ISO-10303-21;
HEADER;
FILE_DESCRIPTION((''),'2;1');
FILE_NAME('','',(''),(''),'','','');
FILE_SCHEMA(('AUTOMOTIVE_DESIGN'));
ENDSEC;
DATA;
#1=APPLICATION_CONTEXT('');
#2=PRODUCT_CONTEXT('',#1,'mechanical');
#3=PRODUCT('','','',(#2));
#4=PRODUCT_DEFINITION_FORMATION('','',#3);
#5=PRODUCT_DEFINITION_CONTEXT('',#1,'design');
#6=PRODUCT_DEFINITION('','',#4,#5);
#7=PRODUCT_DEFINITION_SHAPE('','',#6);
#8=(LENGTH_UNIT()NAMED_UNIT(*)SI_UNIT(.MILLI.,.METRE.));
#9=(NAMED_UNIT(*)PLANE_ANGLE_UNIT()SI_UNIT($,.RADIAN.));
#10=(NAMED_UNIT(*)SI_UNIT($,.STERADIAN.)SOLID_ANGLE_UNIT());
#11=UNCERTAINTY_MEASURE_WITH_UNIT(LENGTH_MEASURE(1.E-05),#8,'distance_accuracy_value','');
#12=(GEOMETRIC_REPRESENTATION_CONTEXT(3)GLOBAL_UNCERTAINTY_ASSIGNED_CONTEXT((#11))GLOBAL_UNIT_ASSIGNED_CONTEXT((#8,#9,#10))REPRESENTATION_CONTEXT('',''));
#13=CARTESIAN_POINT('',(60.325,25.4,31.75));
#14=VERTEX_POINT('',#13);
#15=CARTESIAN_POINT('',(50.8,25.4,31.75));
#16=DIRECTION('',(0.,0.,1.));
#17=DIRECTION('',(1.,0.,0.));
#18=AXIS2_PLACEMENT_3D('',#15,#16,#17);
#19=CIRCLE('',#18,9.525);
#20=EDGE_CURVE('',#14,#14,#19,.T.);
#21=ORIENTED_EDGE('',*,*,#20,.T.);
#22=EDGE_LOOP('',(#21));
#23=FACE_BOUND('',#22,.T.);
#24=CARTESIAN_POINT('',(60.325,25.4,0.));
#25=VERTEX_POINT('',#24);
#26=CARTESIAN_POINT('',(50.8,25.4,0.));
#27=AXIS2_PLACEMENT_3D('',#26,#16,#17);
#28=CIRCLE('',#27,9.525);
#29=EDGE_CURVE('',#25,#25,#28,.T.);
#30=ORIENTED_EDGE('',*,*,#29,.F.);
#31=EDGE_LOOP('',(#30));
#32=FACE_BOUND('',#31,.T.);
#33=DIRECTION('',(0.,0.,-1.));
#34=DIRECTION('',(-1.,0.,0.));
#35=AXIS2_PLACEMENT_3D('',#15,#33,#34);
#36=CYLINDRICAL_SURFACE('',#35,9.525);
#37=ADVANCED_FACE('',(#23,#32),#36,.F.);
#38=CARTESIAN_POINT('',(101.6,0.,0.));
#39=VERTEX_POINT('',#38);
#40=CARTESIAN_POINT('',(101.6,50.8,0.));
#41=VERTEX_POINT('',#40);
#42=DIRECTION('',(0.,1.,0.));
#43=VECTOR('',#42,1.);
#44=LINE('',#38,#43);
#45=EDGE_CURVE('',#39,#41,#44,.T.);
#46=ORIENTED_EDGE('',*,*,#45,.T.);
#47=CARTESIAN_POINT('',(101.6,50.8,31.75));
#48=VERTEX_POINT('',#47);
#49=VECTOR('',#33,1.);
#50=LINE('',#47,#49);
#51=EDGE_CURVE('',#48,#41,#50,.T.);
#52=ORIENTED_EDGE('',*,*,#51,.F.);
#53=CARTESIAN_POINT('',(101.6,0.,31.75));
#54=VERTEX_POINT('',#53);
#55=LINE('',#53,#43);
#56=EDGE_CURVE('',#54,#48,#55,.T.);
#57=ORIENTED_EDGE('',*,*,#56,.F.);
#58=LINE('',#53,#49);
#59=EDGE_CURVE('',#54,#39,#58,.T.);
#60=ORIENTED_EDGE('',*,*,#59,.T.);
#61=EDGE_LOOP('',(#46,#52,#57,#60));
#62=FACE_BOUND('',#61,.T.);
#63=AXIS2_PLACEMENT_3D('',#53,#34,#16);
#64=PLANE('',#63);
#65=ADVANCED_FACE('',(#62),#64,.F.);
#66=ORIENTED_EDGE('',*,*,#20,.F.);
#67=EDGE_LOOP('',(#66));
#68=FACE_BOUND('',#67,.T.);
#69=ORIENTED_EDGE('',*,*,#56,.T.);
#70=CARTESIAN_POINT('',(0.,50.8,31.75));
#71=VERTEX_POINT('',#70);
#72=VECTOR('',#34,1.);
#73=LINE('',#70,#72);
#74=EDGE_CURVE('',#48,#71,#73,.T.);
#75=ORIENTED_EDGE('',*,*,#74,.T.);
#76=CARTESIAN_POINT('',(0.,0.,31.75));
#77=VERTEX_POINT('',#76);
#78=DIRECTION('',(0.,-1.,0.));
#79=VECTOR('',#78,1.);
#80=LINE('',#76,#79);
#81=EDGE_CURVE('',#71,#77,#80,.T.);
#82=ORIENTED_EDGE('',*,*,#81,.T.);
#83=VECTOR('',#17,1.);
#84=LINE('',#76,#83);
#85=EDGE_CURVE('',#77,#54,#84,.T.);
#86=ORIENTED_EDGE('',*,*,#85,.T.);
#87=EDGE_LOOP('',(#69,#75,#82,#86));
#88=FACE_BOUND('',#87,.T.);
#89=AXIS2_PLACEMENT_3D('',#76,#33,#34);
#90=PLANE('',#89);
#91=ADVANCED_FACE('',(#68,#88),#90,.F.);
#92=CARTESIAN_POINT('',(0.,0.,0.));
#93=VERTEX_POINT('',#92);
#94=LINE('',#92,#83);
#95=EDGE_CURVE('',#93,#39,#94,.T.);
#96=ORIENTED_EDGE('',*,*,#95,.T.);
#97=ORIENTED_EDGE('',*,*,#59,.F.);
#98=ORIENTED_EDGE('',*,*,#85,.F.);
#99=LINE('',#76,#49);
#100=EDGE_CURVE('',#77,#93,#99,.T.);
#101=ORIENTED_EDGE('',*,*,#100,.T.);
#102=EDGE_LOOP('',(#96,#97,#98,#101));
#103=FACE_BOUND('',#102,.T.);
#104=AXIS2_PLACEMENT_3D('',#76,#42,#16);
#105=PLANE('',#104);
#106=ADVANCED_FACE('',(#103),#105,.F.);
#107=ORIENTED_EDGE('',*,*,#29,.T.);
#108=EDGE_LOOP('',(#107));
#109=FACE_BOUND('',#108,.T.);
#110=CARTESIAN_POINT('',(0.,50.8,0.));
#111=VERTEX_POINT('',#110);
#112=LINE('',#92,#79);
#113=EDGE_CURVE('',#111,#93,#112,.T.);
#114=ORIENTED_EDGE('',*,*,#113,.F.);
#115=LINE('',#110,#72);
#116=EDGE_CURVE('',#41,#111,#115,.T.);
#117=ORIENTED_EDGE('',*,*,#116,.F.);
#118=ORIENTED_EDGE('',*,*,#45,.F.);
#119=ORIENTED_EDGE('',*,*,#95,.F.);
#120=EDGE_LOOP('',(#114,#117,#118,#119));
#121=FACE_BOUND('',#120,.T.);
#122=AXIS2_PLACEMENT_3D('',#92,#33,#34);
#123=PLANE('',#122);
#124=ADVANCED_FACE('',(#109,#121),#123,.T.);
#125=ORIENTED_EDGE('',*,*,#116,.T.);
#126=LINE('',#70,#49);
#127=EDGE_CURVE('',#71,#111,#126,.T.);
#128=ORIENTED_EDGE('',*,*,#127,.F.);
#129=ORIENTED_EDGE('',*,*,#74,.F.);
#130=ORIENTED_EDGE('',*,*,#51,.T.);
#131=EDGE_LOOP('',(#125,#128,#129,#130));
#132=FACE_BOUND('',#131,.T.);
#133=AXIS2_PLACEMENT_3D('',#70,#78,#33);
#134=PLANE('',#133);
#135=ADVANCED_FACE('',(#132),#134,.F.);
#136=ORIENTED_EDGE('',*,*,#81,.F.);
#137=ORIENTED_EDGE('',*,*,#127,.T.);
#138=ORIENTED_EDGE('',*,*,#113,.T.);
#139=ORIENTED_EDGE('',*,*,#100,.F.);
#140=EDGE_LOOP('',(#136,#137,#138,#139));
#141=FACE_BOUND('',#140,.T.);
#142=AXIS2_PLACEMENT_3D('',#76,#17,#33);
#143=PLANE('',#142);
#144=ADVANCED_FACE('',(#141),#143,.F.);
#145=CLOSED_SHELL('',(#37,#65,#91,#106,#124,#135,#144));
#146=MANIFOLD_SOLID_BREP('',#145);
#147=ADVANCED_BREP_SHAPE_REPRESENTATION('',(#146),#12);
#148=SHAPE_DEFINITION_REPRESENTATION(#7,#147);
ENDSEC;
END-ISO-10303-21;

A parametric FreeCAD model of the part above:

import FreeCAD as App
import Part
import Sketcher
Q = App.Units.Quantity


def add_polygon(sketch, points):
    """Adds a closed chain of lines whose ends are joined by coincident constraints."""
    first, n = sketch.GeometryCount, len(points)
    for a, b in zip(points, points[1:] + points[:1]):
        sketch.addGeometry(Part.LineSegment(App.Vector(*a, 0), App.Vector(*b, 0)), False)
    for i in range(n):
        sketch.addConstraint(Sketcher.Constraint("Coincident", first + i, 2, first + (i + 1) % n, 1))

doc = App.newDocument("Part")
body = doc.addObject("PartDesign::Body", "Body")

sketch1 = body.newObject("Sketcher::SketchObject", "Sketch")
sketch1.AttachmentSupport = (doc.getObject("XY_Plane"), [""])
sketch1.MapMode = "FlatFace"
add_polygon(sketch1, [(0, 51), (0, 0), (102, 0), (102, 51)])
sketch1.addGeometry(Part.Circle(App.Vector(51, 25, 0), App.Vector(0, 0, 1), 10), False)
sketch1.addConstraint(Sketcher.Constraint("Vertical", 0))
sketch1.addConstraint(Sketcher.Constraint("Horizontal", 1))
sketch1.addConstraint(Sketcher.Constraint("Vertical", 2))
sketch1.addConstraint(Sketcher.Constraint("Horizontal", 3))
sketch1.addConstraint(Sketcher.Constraint("Coincident", 0, 2, -1, 1))
sketch1.addConstraint(Sketcher.Constraint("Diameter", 4, Q("0.75 in")))
sketch1.addConstraint(Sketcher.Constraint("DistanceX", 1, 1, 1, 2, Q("4 in")))
sketch1.addConstraint(Sketcher.Constraint("DistanceY", 0, 2, 0, 1, Q("2 in")))
sketch1.addConstraint(Sketcher.Constraint("DistanceX", -1, 1, 4, 3, Q("2 in")))
sketch1.addConstraint(Sketcher.Constraint("DistanceY", -1, 1, 4, 3, Q("1 in")))
pad1 = body.newObject("PartDesign::Pad", "Pad")
pad1.Profile = sketch1
pad1.Length = Q("1.25 in")

doc.recompute()
